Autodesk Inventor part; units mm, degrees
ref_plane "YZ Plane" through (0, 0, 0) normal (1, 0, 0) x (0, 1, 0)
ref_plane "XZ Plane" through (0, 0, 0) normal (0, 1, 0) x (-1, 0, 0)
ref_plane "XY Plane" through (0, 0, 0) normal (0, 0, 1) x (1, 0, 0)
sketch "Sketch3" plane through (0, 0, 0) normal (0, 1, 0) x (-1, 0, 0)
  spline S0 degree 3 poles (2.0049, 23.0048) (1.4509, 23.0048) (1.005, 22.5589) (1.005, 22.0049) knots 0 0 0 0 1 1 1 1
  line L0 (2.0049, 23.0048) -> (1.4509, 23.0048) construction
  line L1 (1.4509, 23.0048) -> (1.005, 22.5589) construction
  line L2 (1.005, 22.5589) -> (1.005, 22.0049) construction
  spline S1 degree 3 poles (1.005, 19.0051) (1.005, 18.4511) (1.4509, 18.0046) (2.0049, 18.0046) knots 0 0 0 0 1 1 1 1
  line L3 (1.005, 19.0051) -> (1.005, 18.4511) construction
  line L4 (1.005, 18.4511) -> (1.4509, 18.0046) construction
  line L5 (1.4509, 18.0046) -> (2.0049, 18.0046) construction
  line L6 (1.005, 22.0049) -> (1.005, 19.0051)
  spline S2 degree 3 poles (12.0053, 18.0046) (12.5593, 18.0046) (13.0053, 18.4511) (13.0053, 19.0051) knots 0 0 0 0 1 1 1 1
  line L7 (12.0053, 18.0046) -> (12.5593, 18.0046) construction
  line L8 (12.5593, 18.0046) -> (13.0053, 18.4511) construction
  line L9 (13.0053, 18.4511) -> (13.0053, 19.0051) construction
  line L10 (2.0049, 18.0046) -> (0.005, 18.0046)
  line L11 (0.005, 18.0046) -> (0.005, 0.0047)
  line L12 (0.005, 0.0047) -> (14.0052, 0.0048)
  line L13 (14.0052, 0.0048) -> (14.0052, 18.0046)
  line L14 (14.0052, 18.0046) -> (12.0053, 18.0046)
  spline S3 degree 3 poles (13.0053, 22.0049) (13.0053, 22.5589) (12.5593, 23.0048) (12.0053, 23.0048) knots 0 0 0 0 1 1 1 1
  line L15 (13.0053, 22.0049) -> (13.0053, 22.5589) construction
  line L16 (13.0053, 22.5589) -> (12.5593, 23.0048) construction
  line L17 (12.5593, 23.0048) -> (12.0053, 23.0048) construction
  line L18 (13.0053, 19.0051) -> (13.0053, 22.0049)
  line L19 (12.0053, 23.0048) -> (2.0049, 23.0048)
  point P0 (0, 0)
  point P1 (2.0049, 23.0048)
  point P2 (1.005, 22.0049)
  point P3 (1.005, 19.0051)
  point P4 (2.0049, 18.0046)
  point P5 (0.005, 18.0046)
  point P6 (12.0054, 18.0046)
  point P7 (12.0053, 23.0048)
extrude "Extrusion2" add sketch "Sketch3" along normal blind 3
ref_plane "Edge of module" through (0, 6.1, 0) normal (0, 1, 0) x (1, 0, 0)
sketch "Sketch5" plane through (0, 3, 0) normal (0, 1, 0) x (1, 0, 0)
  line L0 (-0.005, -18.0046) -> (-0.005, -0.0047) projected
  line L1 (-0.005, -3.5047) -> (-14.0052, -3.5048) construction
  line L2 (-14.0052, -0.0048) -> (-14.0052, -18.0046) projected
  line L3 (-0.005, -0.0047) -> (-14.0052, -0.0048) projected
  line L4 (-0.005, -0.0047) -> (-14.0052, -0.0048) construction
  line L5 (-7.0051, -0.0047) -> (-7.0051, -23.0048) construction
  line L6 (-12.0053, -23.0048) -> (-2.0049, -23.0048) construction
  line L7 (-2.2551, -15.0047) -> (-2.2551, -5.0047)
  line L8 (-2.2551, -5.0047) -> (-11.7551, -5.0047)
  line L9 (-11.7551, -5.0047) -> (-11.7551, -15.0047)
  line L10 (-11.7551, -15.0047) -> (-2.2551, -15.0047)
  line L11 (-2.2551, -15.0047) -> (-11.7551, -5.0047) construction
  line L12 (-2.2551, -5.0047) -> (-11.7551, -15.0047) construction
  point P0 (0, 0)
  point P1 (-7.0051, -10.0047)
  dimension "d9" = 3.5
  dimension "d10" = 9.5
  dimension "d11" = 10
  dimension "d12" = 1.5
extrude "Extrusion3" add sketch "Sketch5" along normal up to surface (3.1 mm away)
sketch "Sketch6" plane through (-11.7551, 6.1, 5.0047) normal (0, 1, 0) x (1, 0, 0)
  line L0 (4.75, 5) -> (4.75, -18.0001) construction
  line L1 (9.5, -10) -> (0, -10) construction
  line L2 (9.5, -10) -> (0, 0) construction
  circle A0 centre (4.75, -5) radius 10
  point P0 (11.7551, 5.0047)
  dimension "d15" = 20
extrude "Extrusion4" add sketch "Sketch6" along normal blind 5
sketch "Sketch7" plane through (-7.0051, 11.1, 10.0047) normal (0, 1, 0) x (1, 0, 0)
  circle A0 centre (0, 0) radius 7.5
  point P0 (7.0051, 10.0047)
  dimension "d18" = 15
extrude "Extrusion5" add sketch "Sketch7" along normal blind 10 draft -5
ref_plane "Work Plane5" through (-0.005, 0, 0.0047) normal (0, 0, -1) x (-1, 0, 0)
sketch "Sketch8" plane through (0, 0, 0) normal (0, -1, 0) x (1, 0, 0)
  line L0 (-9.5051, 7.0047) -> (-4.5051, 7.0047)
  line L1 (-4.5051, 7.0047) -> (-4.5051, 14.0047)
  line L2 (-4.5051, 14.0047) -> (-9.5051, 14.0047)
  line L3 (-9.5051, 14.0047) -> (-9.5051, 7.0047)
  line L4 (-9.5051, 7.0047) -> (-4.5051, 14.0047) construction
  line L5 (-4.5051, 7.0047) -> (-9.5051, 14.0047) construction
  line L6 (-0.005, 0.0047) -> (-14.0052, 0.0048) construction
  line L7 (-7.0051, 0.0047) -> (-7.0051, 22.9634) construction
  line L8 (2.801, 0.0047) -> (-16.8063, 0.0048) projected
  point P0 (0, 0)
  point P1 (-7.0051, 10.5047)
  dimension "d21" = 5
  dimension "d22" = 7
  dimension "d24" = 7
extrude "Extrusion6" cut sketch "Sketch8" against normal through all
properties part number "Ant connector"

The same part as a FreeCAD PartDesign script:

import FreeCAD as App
import Part
import Sketcher
Q = App.Units.Quantity


def add_polygon(sketch, points):
    """Adds a closed chain of lines whose ends are joined by coincident constraints."""
    first, n = sketch.GeometryCount, len(points)
    for a, b in zip(points, points[1:] + points[:1]):
        sketch.addGeometry(Part.LineSegment(App.Vector(*a, 0), App.Vector(*b, 0)), False)
    for i in range(n):
        sketch.addConstraint(Sketcher.Constraint("Coincident", first + i, 2, first + (i + 1) % n, 1))

doc = App.newDocument("Part")
body = doc.addObject("PartDesign::Body", "Body")

# Sketch on XZ plane
sketch1 = body.newObject("Sketcher::SketchObject", "Sketch")
sketch1.AttachmentSupport = (doc.getObject("XZ_Plane"), [""])
sketch1.MapMode = "FlatFace"
sketch1.addGeometry([
    Part.LineSegment(App.Vector(-12.0053, 23.0048, 0), App.Vector(-2.0049, 23.0048, 0)),  # 0
    Part.BSplineCurve([App.Vector(-2.0049, 23.0048, 0), App.Vector(-1.4509, 23.0048, 0), App.Vector(-1.005, 22.5589, 0), App.Vector(-1.005, 22.0049, 0)], [4, 4], [0, 1], False, 3, [1, 1, 1, 1], False),  # 1
    Part.LineSegment(App.Vector(-1.005, 22.0049, 0), App.Vector(-1.005, 19.0051, 0)),  # 2
    Part.BSplineCurve([App.Vector(-1.005, 19.0051, 0), App.Vector(-1.005, 18.4511, 0), App.Vector(-1.4509, 18.0046, 0), App.Vector(-2.0049, 18.0046, 0)], [4, 4], [0, 1], False, 3, [1, 1, 1, 1], False),  # 3
    Part.LineSegment(App.Vector(-2.0049, 18.0046, 0), App.Vector(-0.005, 18.0046, 0)),  # 4
    Part.LineSegment(App.Vector(-0.005, 18.0046, 0), App.Vector(-0.005, 0.0047, 0)),  # 5
    Part.LineSegment(App.Vector(-0.005, 0.0047, 0), App.Vector(-14.0052, 0.0048, 0)),  # 6
    Part.LineSegment(App.Vector(-14.0052, 0.0048, 0), App.Vector(-14.0052, 18.0046, 0)),  # 7
    Part.LineSegment(App.Vector(-14.0052, 18.0046, 0), App.Vector(-12.0053, 18.0046, 0)),  # 8
    Part.BSplineCurve([App.Vector(-12.0053, 18.0046, 0), App.Vector(-12.5593, 18.0046, 0), App.Vector(-13.0053, 18.4511, 0), App.Vector(-13.0053, 19.0051, 0)], [4, 4], [0, 1], False, 3, [1, 1, 1, 1], False),  # 9
    Part.LineSegment(App.Vector(-13.0053, 19.0051, 0), App.Vector(-13.0053, 22.0049, 0)),  # 10
    Part.BSplineCurve([App.Vector(-13.0053, 22.0049, 0), App.Vector(-13.0053, 22.5589, 0), App.Vector(-12.5593, 23.0048, 0), App.Vector(-12.0053, 23.0048, 0)], [4, 4], [0, 1], False, 3, [1, 1, 1, 1], False),  # 11
], False)
sketch1.addConstraint([
    Sketcher.Constraint("Block", 1),
    Sketcher.Constraint("Block", 3),
    Sketcher.Constraint("Block", 9),
    Sketcher.Constraint("Block", 11),
    Sketcher.Constraint("Coincident", 0, 2, 1, 1),
    Sketcher.Constraint("Coincident", 1, 2, 2, 1),
    Sketcher.Constraint("Coincident", 2, 2, 3, 1),
    Sketcher.Constraint("Coincident", 3, 2, 4, 1),
    Sketcher.Constraint("Coincident", 4, 2, 5, 1),
    Sketcher.Constraint("Coincident", 5, 2, 6, 1),
    Sketcher.Constraint("Coincident", 6, 2, 7, 1),
    Sketcher.Constraint("Coincident", 7, 2, 8, 1),
    Sketcher.Constraint("Coincident", 8, 2, 9, 1),
    Sketcher.Constraint("Coincident", 9, 2, 10, 1),
    Sketcher.Constraint("Coincident", 10, 2, 11, 1),
    Sketcher.Constraint("Coincident", 11, 2, 0, 1),
    Sketcher.Constraint("Horizontal", 4),
    Sketcher.Constraint("Vertical", 5),
    Sketcher.Constraint("Horizontal", 6),
    Sketcher.Constraint("Vertical", 7),
    Sketcher.Constraint("Horizontal", 8),
    Sketcher.Constraint("Equal", 4, 8),
    Sketcher.Constraint("DistanceX", 4, 1, 4, 2, Q("2 mm")),
    Sketcher.Constraint("DistanceY", 5, 2, 5, 1, Q("18 mm")),
])
pad1 = body.newObject("PartDesign::Pad", "Pad")
pad1.Profile = sketch1
pad1.Length = 3
pad1.Reversed = True

# Sketch on XZ plane
sketch2 = body.newObject("Sketcher::SketchObject", "Sketch001")
sketch2.AttachmentSupport = (doc.getObject("XZ_Plane"), [""])
sketch2.MapMode = "FlatFace"
sketch2.AttachmentOffset = App.Placement(App.Vector(0, 0, -3), App.Rotation())
add_polygon(sketch2, [(-12, 15), (-2, 15), (-2, 5), (-12, 5)])  # lines 0-3
sketch2.addConstraint([
    Sketcher.Constraint("Horizontal", 0),
    Sketcher.Constraint("Vertical", 1),
    Sketcher.Constraint("Horizontal", 2),
    Sketcher.Constraint("Vertical", 3),
    Sketcher.Constraint("DistanceY", 1, 2, 1, 1, Q("10 mm")),
    Sketcher.Constraint("DistanceX", 0, 1, 0, 2, Q("9.5 mm")),
    Sketcher.Constraint("DistanceX", 0, 2, -1, 1, Q("2.255 mm")),
    Sketcher.Constraint("DistanceY", -1, 1, 0, 2, Q("15.0047 mm")),
])
pad2 = body.newObject("PartDesign::Pad", "Pad001")
pad2.Profile = sketch2
pad2.Length = 3.1
pad2.Reversed = True

# Sketch on XZ plane
sketch3 = body.newObject("Sketcher::SketchObject", "Sketch002")
sketch3.AttachmentSupport = (doc.getObject("XZ_Plane"), [""])
sketch3.MapMode = "FlatFace"
sketch3.AttachmentOffset = App.Placement(App.Vector(0, 0, -6.1), App.Rotation())
sketch3.addGeometry(Part.Circle(App.Vector(-7, 10, 0), App.Vector(0, 0, 1), 10), False)
sketch3.addConstraint([
    Sketcher.Constraint("Diameter", 0, Q("20 mm")),
    Sketcher.Constraint("DistanceX", 0, 3, -1, 1, Q("7.005 mm")),
    Sketcher.Constraint("DistanceY", -1, 1, 0, 3, Q("10.0047 mm")),
])
pad3 = body.newObject("PartDesign::Pad", "Pad002")
pad3.Profile = sketch3
pad3.Length = 5
pad3.Reversed = True

# Sketch on XZ plane
sketch4 = body.newObject("Sketcher::SketchObject", "Sketch003")
sketch4.AttachmentSupport = (doc.getObject("XZ_Plane"), [""])
sketch4.MapMode = "FlatFace"
sketch4.AttachmentOffset = App.Placement(App.Vector(0, 0, -11.1), App.Rotation())
sketch4.addGeometry(Part.Circle(App.Vector(-7, 10, 0), App.Vector(0, 0, 1), 8), False)
sketch4.addConstraint([
    Sketcher.Constraint("Diameter", 0, Q("15 mm")),
    Sketcher.Constraint("DistanceX", 0, 3, -1, 1, Q("7.005 mm")),
    Sketcher.Constraint("DistanceY", -1, 1, 0, 3, Q("10.0047 mm")),
])
pad4 = body.newObject("PartDesign::Pad", "Pad003")
pad4.Profile = sketch4
pad4.Length = 10
pad4.Reversed = True
pad4.TaperAngle = -5

# Sketch on XZ plane
sketch5 = body.newObject("Sketcher::SketchObject", "Sketch004")
sketch5.AttachmentSupport = (doc.getObject("XZ_Plane"), [""])
sketch5.MapMode = "FlatFace"
add_polygon(sketch5, [(-10, 14), (-10, 7), (-5, 7), (-5, 14)])  # lines 0-3
sketch5.addConstraint([
    Sketcher.Constraint("Vertical", 0),
    Sketcher.Constraint("Horizontal", 1),
    Sketcher.Constraint("Vertical", 2),
    Sketcher.Constraint("Horizontal", 3),
    Sketcher.Constraint("DistanceX", 1, 1, 1, 2, Q("5 mm")),
    Sketcher.Constraint("DistanceY", 0, 2, 0, 1, Q("7 mm")),
    Sketcher.Constraint("DistanceX", 0, 2, -1, 1, Q("9.505 mm")),
    Sketcher.Constraint("DistanceY", -1, 1, 0, 2, Q("7.0047 mm")),
])
pocket1 = body.newObject("PartDesign::Pocket", "Pocket")
pocket1.Profile = sketch5
pocket1.Type = "ThroughAll"

doc.recompute()
